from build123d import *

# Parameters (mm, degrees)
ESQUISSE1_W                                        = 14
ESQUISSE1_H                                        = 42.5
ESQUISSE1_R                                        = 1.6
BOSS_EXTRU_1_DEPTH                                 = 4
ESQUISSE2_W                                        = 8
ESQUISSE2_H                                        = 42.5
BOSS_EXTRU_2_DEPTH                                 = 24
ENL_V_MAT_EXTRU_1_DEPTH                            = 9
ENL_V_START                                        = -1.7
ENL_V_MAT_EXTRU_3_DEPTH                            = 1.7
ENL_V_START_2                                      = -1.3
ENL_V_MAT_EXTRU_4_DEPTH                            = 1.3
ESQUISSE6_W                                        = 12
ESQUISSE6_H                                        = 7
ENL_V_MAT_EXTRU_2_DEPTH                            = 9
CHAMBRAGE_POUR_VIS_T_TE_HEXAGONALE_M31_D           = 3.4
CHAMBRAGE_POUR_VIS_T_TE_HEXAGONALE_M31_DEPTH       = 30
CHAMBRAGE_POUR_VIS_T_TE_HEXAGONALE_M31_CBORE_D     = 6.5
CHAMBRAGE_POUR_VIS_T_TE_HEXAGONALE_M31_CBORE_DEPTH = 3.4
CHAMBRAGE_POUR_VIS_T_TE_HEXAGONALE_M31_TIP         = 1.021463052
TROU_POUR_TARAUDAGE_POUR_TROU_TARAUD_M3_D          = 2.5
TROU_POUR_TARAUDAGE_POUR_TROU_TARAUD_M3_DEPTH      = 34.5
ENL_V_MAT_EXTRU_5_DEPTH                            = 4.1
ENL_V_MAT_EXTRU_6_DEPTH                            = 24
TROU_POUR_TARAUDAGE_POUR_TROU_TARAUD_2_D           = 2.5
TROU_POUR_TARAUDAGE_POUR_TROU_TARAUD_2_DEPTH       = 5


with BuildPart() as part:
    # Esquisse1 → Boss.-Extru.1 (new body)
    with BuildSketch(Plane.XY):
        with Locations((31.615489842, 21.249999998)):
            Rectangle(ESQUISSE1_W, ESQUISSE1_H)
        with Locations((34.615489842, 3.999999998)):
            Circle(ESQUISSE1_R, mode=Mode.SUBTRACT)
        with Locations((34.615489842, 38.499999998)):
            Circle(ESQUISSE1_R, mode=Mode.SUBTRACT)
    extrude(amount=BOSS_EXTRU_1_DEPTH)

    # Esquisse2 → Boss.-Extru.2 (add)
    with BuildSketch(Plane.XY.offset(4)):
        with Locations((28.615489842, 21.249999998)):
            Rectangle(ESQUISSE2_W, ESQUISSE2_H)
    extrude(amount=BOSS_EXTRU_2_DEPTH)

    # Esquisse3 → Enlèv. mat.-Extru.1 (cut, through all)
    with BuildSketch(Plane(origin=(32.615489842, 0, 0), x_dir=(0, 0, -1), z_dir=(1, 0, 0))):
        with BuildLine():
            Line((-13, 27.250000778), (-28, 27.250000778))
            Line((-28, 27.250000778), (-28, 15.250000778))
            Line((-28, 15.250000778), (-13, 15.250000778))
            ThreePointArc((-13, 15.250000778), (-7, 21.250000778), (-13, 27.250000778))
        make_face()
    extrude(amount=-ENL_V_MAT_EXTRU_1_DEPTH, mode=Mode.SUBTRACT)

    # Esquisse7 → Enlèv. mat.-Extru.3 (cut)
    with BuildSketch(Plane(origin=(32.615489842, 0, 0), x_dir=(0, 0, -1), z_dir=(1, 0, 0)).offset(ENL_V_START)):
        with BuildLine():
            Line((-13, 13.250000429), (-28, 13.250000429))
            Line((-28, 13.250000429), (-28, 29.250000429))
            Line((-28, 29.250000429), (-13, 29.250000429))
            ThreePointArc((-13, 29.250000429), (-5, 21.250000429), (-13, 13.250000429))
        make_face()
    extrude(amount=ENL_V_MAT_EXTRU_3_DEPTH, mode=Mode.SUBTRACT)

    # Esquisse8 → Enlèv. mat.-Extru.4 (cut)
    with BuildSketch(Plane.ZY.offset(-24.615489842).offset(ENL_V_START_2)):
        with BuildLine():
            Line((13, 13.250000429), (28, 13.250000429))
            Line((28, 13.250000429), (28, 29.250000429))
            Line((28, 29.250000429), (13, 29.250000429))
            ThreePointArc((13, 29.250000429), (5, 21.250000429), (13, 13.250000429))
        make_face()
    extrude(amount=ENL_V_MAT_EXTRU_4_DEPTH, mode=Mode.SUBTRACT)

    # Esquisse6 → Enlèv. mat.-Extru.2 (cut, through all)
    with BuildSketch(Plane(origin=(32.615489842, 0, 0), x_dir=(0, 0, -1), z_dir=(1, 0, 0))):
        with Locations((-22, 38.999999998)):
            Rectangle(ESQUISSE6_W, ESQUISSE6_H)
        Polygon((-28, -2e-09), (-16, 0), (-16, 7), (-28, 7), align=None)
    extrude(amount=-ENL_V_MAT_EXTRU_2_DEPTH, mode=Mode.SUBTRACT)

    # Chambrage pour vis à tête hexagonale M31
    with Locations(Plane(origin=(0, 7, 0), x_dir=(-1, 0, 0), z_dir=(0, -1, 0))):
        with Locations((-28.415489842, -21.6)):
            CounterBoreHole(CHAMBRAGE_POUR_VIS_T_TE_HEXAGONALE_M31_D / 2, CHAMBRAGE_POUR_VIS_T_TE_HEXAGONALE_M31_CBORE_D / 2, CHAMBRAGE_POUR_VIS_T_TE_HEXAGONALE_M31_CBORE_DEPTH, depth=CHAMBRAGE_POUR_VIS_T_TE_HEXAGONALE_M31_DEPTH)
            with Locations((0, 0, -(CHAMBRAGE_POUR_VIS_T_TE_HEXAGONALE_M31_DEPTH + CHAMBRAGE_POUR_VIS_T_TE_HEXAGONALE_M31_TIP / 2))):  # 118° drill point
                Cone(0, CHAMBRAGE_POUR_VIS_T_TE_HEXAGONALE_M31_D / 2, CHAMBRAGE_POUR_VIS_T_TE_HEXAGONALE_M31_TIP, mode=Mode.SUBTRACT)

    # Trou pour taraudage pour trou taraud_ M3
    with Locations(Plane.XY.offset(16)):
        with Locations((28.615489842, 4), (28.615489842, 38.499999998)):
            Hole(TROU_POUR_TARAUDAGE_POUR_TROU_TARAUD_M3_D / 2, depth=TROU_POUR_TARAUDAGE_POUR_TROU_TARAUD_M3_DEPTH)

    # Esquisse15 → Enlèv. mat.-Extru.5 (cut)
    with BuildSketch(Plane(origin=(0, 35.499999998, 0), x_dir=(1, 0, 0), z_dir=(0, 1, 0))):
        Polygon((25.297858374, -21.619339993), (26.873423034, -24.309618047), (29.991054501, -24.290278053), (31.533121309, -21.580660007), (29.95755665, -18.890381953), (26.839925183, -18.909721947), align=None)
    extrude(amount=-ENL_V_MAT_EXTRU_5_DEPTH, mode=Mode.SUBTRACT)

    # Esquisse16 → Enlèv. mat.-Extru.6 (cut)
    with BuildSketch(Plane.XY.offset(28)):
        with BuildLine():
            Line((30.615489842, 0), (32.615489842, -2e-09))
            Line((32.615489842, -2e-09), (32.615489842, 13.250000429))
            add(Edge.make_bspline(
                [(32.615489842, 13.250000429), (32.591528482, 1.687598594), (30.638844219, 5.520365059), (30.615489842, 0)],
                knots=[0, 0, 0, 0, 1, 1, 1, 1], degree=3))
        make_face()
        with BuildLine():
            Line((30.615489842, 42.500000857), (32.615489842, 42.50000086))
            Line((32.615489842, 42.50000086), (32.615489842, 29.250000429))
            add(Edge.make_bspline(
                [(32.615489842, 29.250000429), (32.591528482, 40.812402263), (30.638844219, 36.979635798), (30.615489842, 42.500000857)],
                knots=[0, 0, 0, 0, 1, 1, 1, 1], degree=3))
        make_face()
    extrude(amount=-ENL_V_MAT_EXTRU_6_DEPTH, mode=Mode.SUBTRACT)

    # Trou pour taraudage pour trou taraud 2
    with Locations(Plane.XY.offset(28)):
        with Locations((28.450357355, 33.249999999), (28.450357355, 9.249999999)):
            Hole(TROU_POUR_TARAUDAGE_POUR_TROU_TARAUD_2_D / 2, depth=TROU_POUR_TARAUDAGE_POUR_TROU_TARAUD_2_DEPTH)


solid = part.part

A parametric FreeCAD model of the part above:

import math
import FreeCAD as App
import Part
import Sketcher

V = App.Vector


def add_polygon(sketch, points):
    """Adds a closed chain of lines whose ends are joined by coincident constraints."""
    first, n = sketch.GeometryCount, len(points)
    for a, b in zip(points, points[1:] + points[:1]):
        sketch.addGeometry(Part.LineSegment(App.Vector(*a, 0), App.Vector(*b, 0)), False)
    for i in range(n):
        sketch.addConstraint(Sketcher.Constraint("Coincident", first + i, 2, first + (i + 1) % n, 1))

doc = App.newDocument("Part")
body = doc.addObject("PartDesign::Body", "Body")

# Sketch on XY plane
sketch1 = body.newObject("Sketcher::SketchObject", "Sketch")
sketch1.AttachmentSupport = (doc.getObject("XY_Plane"), [""])
sketch1.MapMode = "FlatFace"
add_polygon(sketch1, [(24.6, 42.5), (24.6, 0), (38.6, 0), (38.6, 42.5)])  # lines 0-3
sketch1.addGeometry(Part.Circle(V(34.6, 4, 0), V(0, 0, 1), 1.6), False)  # 4
sketch1.addGeometry(Part.Circle(V(34.6, 38.5, 0), V(0, 0, 1), 1.6), False)  # 5
sketch1.addConstraint([
    Sketcher.Constraint("Vertical", 0),
    Sketcher.Constraint("Horizontal", 1),
    Sketcher.Constraint("Vertical", 2),
    Sketcher.Constraint("Horizontal", 3),
    Sketcher.Constraint("Equal", 4, 5),
    Sketcher.Constraint("PointOnObject", 0, 2, -1),
    Sketcher.Constraint("Vertical", 4, 3, 5, 3),
    Sketcher.Constraint("Diameter", 4, 3.2),
    Sketcher.Constraint("DistanceX", 1, 1, 1, 2, 14.0),
    Sketcher.Constraint("DistanceY", 0, 2, 0, 1, 42.5),
    Sketcher.Constraint("DistanceY", -1, 1, 4, 3, 4.0),
    Sketcher.Constraint("DistanceX", 0, 2, 4, 3, 10.0),
    Sketcher.Constraint("DistanceY", 5, 3, 2, 2, 4.0),
    Sketcher.Constraint("DistanceX", -1, 1, 4, 3, 34.61549),
])
pad1 = body.newObject("PartDesign::Pad", "Pad")
pad1.Profile = sketch1
pad1.Length = 4

# Sketch on XY plane
sketch2 = body.newObject("Sketcher::SketchObject", "Sketch001")
sketch2.AttachmentSupport = (doc.getObject("XY_Plane"), [""])
sketch2.MapMode = "FlatFace"
sketch2.AttachmentOffset = App.Placement(V(0, 0, 4), App.Rotation())
add_polygon(sketch2, [(25, 42), (25, 0), (33, 0), (33, 42)])  # lines 0-3
sketch2.addConstraint([
    Sketcher.Constraint("Vertical", 0),
    Sketcher.Constraint("Horizontal", 1),
    Sketcher.Constraint("Vertical", 2),
    Sketcher.Constraint("Horizontal", 3),
    Sketcher.Constraint("PointOnObject", 0, 2, -1),
    Sketcher.Constraint("DistanceX", 1, 1, 1, 2, 8.0),
    Sketcher.Constraint("DistanceY", 0, 2, 0, 1, 42.5),
    Sketcher.Constraint("DistanceX", -1, 1, 0, 2, 24.61549),
])
pad2 = body.newObject("PartDesign::Pad", "Pad001")
pad2.Profile = sketch2
pad2.Length = 24

# Sketch on YZ plane
sketch3 = body.newObject("Sketcher::SketchObject", "Sketch002")
sketch3.AttachmentSupport = (doc.getObject("YZ_Plane"), [""])
sketch3.MapMode = "FlatFace"
sketch3.AttachmentOffset = App.Placement(V(0, 0, 32.61549), App.Rotation())
sketch3.addGeometry([
    Part.LineSegment(V(27, 13, 0), V(27, 28, 0)),
    Part.LineSegment(V(27, 28, 0), V(15, 28, 0)),
    Part.LineSegment(V(15, 28, 0), V(15, 13, 0)),
    Part.ArcOfCircle(Part.Circle(V(21, 13, 0), V(0, 0, 1), 6), math.radians(180), math.radians(360)),
], False)
sketch3.addConstraint([
    Sketcher.Constraint("Coincident", 0, 2, 1, 1),
    Sketcher.Constraint("Coincident", 1, 2, 2, 1),
    Sketcher.Constraint("Tangent", 2, 2, 3, 1),
    Sketcher.Constraint("Tangent", 3, 2, 0, 1),
    Sketcher.Constraint("Vertical", 0),
    Sketcher.Constraint("Horizontal", 1),
    Sketcher.Constraint("Vertical", 2),
    Sketcher.Constraint("Radius", 3, 6.0),
    Sketcher.Constraint("DistanceY", 0, 1, 0, 2, 15.0),
    Sketcher.Constraint("DistanceY", -1, 1, 3, 3, 13.0),
    Sketcher.Constraint("DistanceX", -1, 1, 3, 3, 21.250001),
])
pocket1 = body.newObject("PartDesign::Pocket", "Pocket")
pocket1.Profile = sketch3
pocket1.Type = "ThroughAll"

# Sketch on YZ plane
sketch4 = body.newObject("Sketcher::SketchObject", "Sketch003")
sketch4.AttachmentSupport = (doc.getObject("YZ_Plane"), [""])
sketch4.MapMode = "FlatFace"
sketch4.AttachmentOffset = App.Placement(V(0, 0, 30.91549), App.Rotation())
sketch4.addGeometry([
    Part.LineSegment(V(13, 28, 0), V(13, 13, 0)),
    Part.ArcOfCircle(Part.Circle(V(21, 13, 0), V(0, 0, 1), 8), math.radians(180), math.radians(360)),
    Part.LineSegment(V(29, 13, 0), V(29, 28, 0)),
    Part.LineSegment(V(29, 28, 0), V(13, 28, 0)),
], False)
sketch4.addConstraint([
    Sketcher.Constraint("Tangent", 0, 2, 1, 1),
    Sketcher.Constraint("Tangent", 1, 2, 2, 1),
    Sketcher.Constraint("Coincident", 2, 2, 3, 1),
    Sketcher.Constraint("Coincident", 3, 2, 0, 1),
    Sketcher.Constraint("Vertical", 0),
    Sketcher.Constraint("Vertical", 2),
    Sketcher.Constraint("Horizontal", 3),
    Sketcher.Constraint("Radius", 1, 8.0),
    Sketcher.Constraint("DistanceY", 0, 2, 0, 1, 15.0),
    Sketcher.Constraint("DistanceY", -1, 1, 1, 3, 13.0),
    Sketcher.Constraint("DistanceX", -1, 1, 1, 3, 21.25),
])
pocket2 = body.newObject("PartDesign::Pocket", "Pocket001")
pocket2.Profile = sketch4
pocket2.Length = 1.7
pocket2.Reversed = True

# Sketch on YZ plane
sketch5 = body.newObject("Sketcher::SketchObject", "Sketch004")
sketch5.AttachmentSupport = (doc.getObject("YZ_Plane"), [""])
sketch5.MapMode = "FlatFace"
sketch5.AttachmentOffset = App.Placement(V(0, 0, 25.91549), App.Rotation())
sketch5.addGeometry([
    Part.LineSegment(V(13, 13, 0), V(13, 28, 0)),
    Part.LineSegment(V(13, 28, 0), V(29, 28, 0)),
    Part.LineSegment(V(29, 28, 0), V(29, 13, 0)),
    Part.ArcOfCircle(Part.Circle(V(21, 13, 0), V(0, 0, 1), 8), math.radians(180), math.radians(360)),
], False)
sketch5.addConstraint([
    Sketcher.Constraint("Coincident", 0, 2, 1, 1),
    Sketcher.Constraint("Coincident", 1, 2, 2, 1),
    Sketcher.Constraint("Tangent", 2, 2, 3, 2),
    Sketcher.Constraint("Tangent", 3, 1, 0, 1),
    Sketcher.Constraint("Vertical", 0),
    Sketcher.Constraint("Horizontal", 1),
    Sketcher.Constraint("Vertical", 2),
    Sketcher.Constraint("Radius", 3, 8.0),
    Sketcher.Constraint("DistanceY", 0, 1, 0, 2, 15.0),
    Sketcher.Constraint("DistanceY", -1, 1, 3, 3, 13.0),
    Sketcher.Constraint("DistanceX", -1, 1, 3, 3, 21.25),
])
pocket3 = body.newObject("PartDesign::Pocket", "Pocket002")
pocket3.Profile = sketch5
pocket3.Length = 1.3

# Sketch on YZ plane
sketch6 = body.newObject("Sketcher::SketchObject", "Sketch005")
sketch6.AttachmentSupport = (doc.getObject("YZ_Plane"), [""])
sketch6.MapMode = "FlatFace"
sketch6.AttachmentOffset = App.Placement(V(0, 0, 32.61549), App.Rotation())
add_polygon(sketch6, [(42, 28), (35, 28), (35, 16), (42, 16)])  # lines 0-3
add_polygon(sketch6, [(0, 28), (0, 16), (7, 16), (7, 28)])  # lines 4-7
sketch6.addConstraint([
    Sketcher.Constraint("Horizontal", 0),
    Sketcher.Constraint("Vertical", 1),
    Sketcher.Constraint("Horizontal", 2),
    Sketcher.Constraint("Vertical", 3),
    Sketcher.Constraint("Vertical", 4),
    Sketcher.Constraint("Horizontal", 5),
    Sketcher.Constraint("Vertical", 6),
    Sketcher.Constraint("Horizontal", 7),
    Sketcher.Constraint("PointOnObject", 4, 2, -2),
    Sketcher.Constraint("Horizontal", 2, 2, 4, 2),
    Sketcher.Constraint("Horizontal", 3, 2, 6, 2),
    Sketcher.Constraint("Equal", 2, 5),
    Sketcher.Constraint("DistanceX", 0, 2, 0, 1, 7.0),
    Sketcher.Constraint("DistanceY", 1, 2, 1, 1, 12.0),
    Sketcher.Constraint("DistanceY", -1, 1, 0, 2, 28.0),
    Sketcher.Constraint("DistanceX", -1, 1, 0, 2, 35.5),
])
pocket4 = body.newObject("PartDesign::Pocket", "Pocket003")
pocket4.Profile = sketch6
pocket4.Type = "ThroughAll"

# Sketch on XZ plane
sketch7 = body.newObject("Sketcher::SketchObject", "Sketch006")
sketch7.AttachmentSupport = (doc.getObject("XZ_Plane"), [""])
sketch7.MapMode = "FlatFace"
sketch7.AttachmentOffset = App.Placement(V(0, 0, -7), App.Rotation())
sketch7.addGeometry(Part.Circle(V(28.4, 21.6, 0), V(0, 0, 1), 1.7), False)
sketch7.addConstraint([
    Sketcher.Constraint("Diameter", 0, 3.4),
    Sketcher.Constraint("DistanceY", -1, 1, 0, 3, 21.6),
    Sketcher.Constraint("DistanceX", -1, 1, 0, 3, 28.41549),
])
doc.recompute()
hole = body.newObject("PartDesign::Hole", "Hole")
hole.Profile = sketch7
hole.ThreadType = "None"
hole.Diameter = 3.4
hole.DepthType = "Dimension"
hole.Depth = 30
hole.DrillPoint = "Angled"
hole.DrillPointAngle = 118
hole.HoleCutType = "Counterbore"
hole.HoleCutDiameter = 6.5
hole.HoleCutDepth = 3.4

# Sketch on XY plane
sketch8 = body.newObject("Sketcher::SketchObject", "Sketch007")
sketch8.AttachmentSupport = (doc.getObject("XY_Plane"), [""])
sketch8.MapMode = "FlatFace"
sketch8.AttachmentOffset = App.Placement(V(0, 0, 16), App.Rotation())
sketch8.addGeometry([
    Part.Circle(V(28.6, 4, 0), V(0, 0, 1), 1.2),
    Part.Circle(V(28.6, 38.5, 0), V(0, 0, 1), 1.2),
], False)
sketch8.addConstraint([
    Sketcher.Constraint("Equal", 0, 1),
    Sketcher.Constraint("Vertical", 0, 3, 1, 3),
    Sketcher.Constraint("Diameter", 0, 2.5),
    Sketcher.Constraint("DistanceY", -1, 1, 0, 3, 4.0),
    Sketcher.Constraint("DistanceY", -1, 1, 1, 3, 38.5),
    Sketcher.Constraint("DistanceX", -1, 1, 0, 3, 28.61549),
])
doc.recompute()
hole2 = body.newObject("PartDesign::Hole", "Hole001")
hole2.Profile = sketch8
hole2.ThreadType = "None"
hole2.Diameter = 2.5
hole2.DepthType = "Dimension"
hole2.Depth = 34.5
hole2.DrillPoint = "Flat"

# Sketch on XZ plane
sketch9 = body.newObject("Sketcher::SketchObject", "Sketch008")
sketch9.AttachmentSupport = (doc.getObject("XZ_Plane"), [""])
sketch9.MapMode = "FlatFace"
sketch9.AttachmentOffset = App.Placement(V(0, 0, -35.5), App.Rotation())
add_polygon(sketch9, [(25.3, 21.6), (26.9, 24.3), (30, 24.3), (31.5, 21.6), (30, 18.9), (26.8, 18.9)])  # lines 0-5
sketch9.addConstraint([
    Sketcher.Constraint("Parallel", 0, 3),
    Sketcher.Constraint("Parallel", 1, 4),
    Sketcher.Constraint("Parallel", 2, 5),
    Sketcher.Constraint("Equal", 0, 1),
    Sketcher.Constraint("Equal", 1, 2),
    Sketcher.Constraint("Equal", 2, 3),
    Sketcher.Constraint("DistanceX", 0, 2, 2, 2, 4.659698),
    Sketcher.Constraint("Distance", 0, 3.117691),
    Sketcher.Constraint("DistanceY", -1, 1, 0, 2, 24.309618),
    Sketcher.Constraint("DistanceY", -1, 1, 1, 2, 24.290278),
    Sketcher.Constraint("DistanceX", -1, 1, 2, 2, 31.533121),
    Sketcher.Constraint("DistanceY", -1, 1, 3, 2, 18.890382),
])
pocket5 = body.newObject("PartDesign::Pocket", "Pocket004")
pocket5.Profile = sketch9
pocket5.Length = 4.1
pocket5.Reversed = True

# Sketch on XY plane
sketch10 = body.newObject("Sketcher::SketchObject", "Sketch009")
sketch10.AttachmentSupport = (doc.getObject("XY_Plane"), [""])
sketch10.MapMode = "FlatFace"
sketch10.AttachmentOffset = App.Placement(V(0, 0, 28), App.Rotation())
sketch10.addGeometry([
    Part.LineSegment(V(30.61549, 0, 0), V(32.61549, 0, 0)),  # 0
    Part.LineSegment(V(32.61549, 0, 0), V(32.61549, 13.25, 0)),  # 1
    Part.BSplineCurve([V(32.61549, 13.25, 0), V(32.591528, 1.687599, 0), V(30.638844, 5.520365, 0), V(30.61549, 0, 0)], [4, 4], [0, 1], False, 3, [1, 1, 1, 1], False),  # 2
    Part.LineSegment(V(32.61549, 42.500001, 0), V(30.61549, 42.500001, 0)),  # 3
    Part.BSplineCurve([V(32.61549, 29.25, 0), V(32.591528, 40.812402, 0), V(30.638844, 36.979636, 0), V(30.61549, 42.500001, 0)], [4, 4], [0, 1], False, 3, [1, 1, 1, 1], False),  # 4
    Part.LineSegment(V(32.61549, 29.25, 0), V(32.61549, 42.500001, 0)),  # 5
], False)
sketch10.addConstraint([
    Sketcher.Constraint("Block", 2),
    Sketcher.Constraint("Block", 4),
    Sketcher.Constraint("Coincident", 0, 2, 1, 1),
    Sketcher.Constraint("Coincident", 1, 2, 2, 1),
    Sketcher.Constraint("Coincident", 2, 2, 0, 1),
    Sketcher.Constraint("Coincident", 3, 2, 4, 2),
    Sketcher.Constraint("Coincident", 4, 1, 5, 1),
    Sketcher.Constraint("Coincident", 5, 2, 3, 1),
    Sketcher.Constraint("Horizontal", 0),
    Sketcher.Constraint("Vertical", 1),
    Sketcher.Constraint("Horizontal", 3),
    Sketcher.Constraint("Vertical", 5),
])
pocket6 = body.newObject("PartDesign::Pocket", "Pocket005")
pocket6.Profile = sketch10
pocket6.Length = 24

# Sketch on XY plane
sketch11 = body.newObject("Sketcher::SketchObject", "Sketch010")
sketch11.AttachmentSupport = (doc.getObject("XY_Plane"), [""])
sketch11.MapMode = "FlatFace"
sketch11.AttachmentOffset = App.Placement(V(0, 0, 28), App.Rotation())
sketch11.addGeometry([
    Part.Circle(V(28.5, 33.2, 0), V(0, 0, 1), 1.2),
    Part.Circle(V(28.5, 9.2, 0), V(0, 0, 1), 1.2),
], False)
sketch11.addConstraint([
    Sketcher.Constraint("Equal", 0, 1),
    Sketcher.Constraint("Vertical", 0, 3, 1, 3),
    Sketcher.Constraint("Diameter", 0, 2.5),
    Sketcher.Constraint("DistanceY", 1, 3, 0, 3, 24.0),
    Sketcher.Constraint("DistanceY", -1, 1, 0, 3, 33.25),
    Sketcher.Constraint("DistanceX", -1, 1, 0, 3, 28.450357),
])
doc.recompute()
hole3 = body.newObject("PartDesign::Hole", "Hole002")
hole3.Profile = sketch11
hole3.ThreadType = "None"
hole3.Diameter = 2.5
hole3.DepthType = "Dimension"
hole3.Depth = 5
hole3.DrillPoint = "Flat"

doc.recompute()
